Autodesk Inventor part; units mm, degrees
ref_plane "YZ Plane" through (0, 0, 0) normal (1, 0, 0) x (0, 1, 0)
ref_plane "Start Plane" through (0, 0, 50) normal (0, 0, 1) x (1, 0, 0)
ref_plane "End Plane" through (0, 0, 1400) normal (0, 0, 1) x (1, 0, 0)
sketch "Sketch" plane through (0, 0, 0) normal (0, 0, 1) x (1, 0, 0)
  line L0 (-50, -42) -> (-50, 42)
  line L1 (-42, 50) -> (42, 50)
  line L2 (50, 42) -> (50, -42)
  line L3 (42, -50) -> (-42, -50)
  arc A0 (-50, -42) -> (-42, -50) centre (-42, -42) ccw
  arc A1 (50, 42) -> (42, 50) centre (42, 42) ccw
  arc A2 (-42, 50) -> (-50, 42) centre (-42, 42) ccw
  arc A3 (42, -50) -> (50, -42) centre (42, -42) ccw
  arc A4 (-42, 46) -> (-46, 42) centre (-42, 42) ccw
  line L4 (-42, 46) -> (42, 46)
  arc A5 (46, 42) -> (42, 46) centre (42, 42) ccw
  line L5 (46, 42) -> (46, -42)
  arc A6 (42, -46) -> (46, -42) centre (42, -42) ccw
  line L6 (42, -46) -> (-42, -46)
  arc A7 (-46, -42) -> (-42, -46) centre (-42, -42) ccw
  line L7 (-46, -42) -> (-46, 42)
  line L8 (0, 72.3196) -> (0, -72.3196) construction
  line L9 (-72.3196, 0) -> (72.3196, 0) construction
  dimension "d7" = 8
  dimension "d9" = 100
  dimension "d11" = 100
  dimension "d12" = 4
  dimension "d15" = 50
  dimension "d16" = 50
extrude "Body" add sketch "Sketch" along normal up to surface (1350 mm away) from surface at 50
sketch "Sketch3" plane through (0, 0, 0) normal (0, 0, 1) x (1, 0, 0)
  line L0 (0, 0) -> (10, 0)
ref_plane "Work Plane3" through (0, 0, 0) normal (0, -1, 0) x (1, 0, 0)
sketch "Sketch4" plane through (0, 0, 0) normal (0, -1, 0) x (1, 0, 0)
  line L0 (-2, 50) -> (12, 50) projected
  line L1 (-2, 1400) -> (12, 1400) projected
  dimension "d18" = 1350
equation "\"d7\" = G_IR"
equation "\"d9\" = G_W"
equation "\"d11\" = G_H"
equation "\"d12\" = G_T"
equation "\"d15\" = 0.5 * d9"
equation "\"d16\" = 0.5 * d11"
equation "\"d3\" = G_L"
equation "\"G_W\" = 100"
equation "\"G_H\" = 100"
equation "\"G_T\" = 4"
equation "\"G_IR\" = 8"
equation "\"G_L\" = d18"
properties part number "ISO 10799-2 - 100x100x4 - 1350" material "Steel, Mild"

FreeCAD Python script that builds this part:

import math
import FreeCAD as App
import Part
import Sketcher
from FreeCAD import Vector
Q = App.Units.Quantity

doc = App.newDocument("Part")
body = doc.addObject("PartDesign::Body", "Body")

# Sketch on XY plane
sketch1 = body.newObject("Sketcher::SketchObject", "Sketch")
sketch1.AttachmentSupport = (doc.getObject("XY_Plane"), [""])
sketch1.MapMode = "FlatFace"
sketch1.AttachmentOffset = App.Placement(Vector(0, 0, 50), App.Rotation())
sketch1.addGeometry(Part.LineSegment(Vector(-50, 42, 0), Vector(-50, -42, 0)), False)
sketch1.addGeometry(Part.ArcOfCircle(Part.Circle(Vector(-42, -42, 0), Vector(0, 0, 1), 8), math.radians(180), math.radians(270)), False)
sketch1.addGeometry(Part.LineSegment(Vector(-42, -50, 0), Vector(42, -50, 0)), False)
sketch1.addGeometry(Part.ArcOfCircle(Part.Circle(Vector(42, -42, 0), Vector(0, 0, 1), 8), math.radians(-90), math.radians(0)), False)
sketch1.addGeometry(Part.LineSegment(Vector(50, -42, 0), Vector(50, 42, 0)), False)
sketch1.addGeometry(Part.ArcOfCircle(Part.Circle(Vector(42, 42, 0), Vector(0, 0, 1), 8), math.radians(0), math.radians(90)), False)
sketch1.addGeometry(Part.LineSegment(Vector(42, 50, 0), Vector(-42, 50, 0)), False)
sketch1.addGeometry(Part.ArcOfCircle(Part.Circle(Vector(-42, 42, 0), Vector(0, 0, 1), 8), math.radians(90), math.radians(180)), False)
sketch1.addGeometry(Part.ArcOfCircle(Part.Circle(Vector(-42, 42, 0), Vector(0, 0, 1), 4), math.radians(90), math.radians(180)), False)
sketch1.addGeometry(Part.LineSegment(Vector(-42, 46, 0), Vector(42, 46, 0)), False)
sketch1.addGeometry(Part.ArcOfCircle(Part.Circle(Vector(42, 42, 0), Vector(0, 0, 1), 4), math.radians(0), math.radians(90)), False)
sketch1.addGeometry(Part.LineSegment(Vector(46, 42, 0), Vector(46, -42, 0)), False)
sketch1.addGeometry(Part.ArcOfCircle(Part.Circle(Vector(42, -42, 0), Vector(0, 0, 1), 4), math.radians(-90), math.radians(0)), False)
sketch1.addGeometry(Part.LineSegment(Vector(42, -46, 0), Vector(-42, -46, 0)), False)
sketch1.addGeometry(Part.ArcOfCircle(Part.Circle(Vector(-42, -42, 0), Vector(0, 0, 1), 4), math.radians(180), math.radians(270)), False)
sketch1.addGeometry(Part.LineSegment(Vector(-46, -42, 0), Vector(-46, 42, 0)), False)
sketch1.addConstraint(Sketcher.Constraint("Tangent", 0, 2, 1, 1))
sketch1.addConstraint(Sketcher.Constraint("Tangent", 1, 2, 2, 1))
sketch1.addConstraint(Sketcher.Constraint("Tangent", 2, 2, 3, 1))
sketch1.addConstraint(Sketcher.Constraint("Tangent", 3, 2, 4, 1))
sketch1.addConstraint(Sketcher.Constraint("Tangent", 4, 2, 5, 1))
sketch1.addConstraint(Sketcher.Constraint("Tangent", 5, 2, 6, 1))
sketch1.addConstraint(Sketcher.Constraint("Tangent", 6, 2, 7, 1))
sketch1.addConstraint(Sketcher.Constraint("Tangent", 7, 2, 0, 1))
sketch1.addConstraint(Sketcher.Constraint("Tangent", 8, 1, 9, 1))
sketch1.addConstraint(Sketcher.Constraint("Tangent", 9, 2, 10, 2))
sketch1.addConstraint(Sketcher.Constraint("Tangent", 10, 1, 11, 1))
sketch1.addConstraint(Sketcher.Constraint("Tangent", 11, 2, 12, 2))
sketch1.addConstraint(Sketcher.Constraint("Tangent", 12, 1, 13, 1))
sketch1.addConstraint(Sketcher.Constraint("Tangent", 13, 2, 14, 2))
sketch1.addConstraint(Sketcher.Constraint("Tangent", 14, 1, 15, 1))
sketch1.addConstraint(Sketcher.Constraint("Tangent", 15, 2, 8, 2))
sketch1.addConstraint(Sketcher.Constraint("Vertical", 0))
sketch1.addConstraint(Sketcher.Constraint("Horizontal", 2))
sketch1.addConstraint(Sketcher.Constraint("Vertical", 4))
sketch1.addConstraint(Sketcher.Constraint("Horizontal", 6))
sketch1.addConstraint(Sketcher.Constraint("Horizontal", 9))
sketch1.addConstraint(Sketcher.Constraint("Vertical", 11))
sketch1.addConstraint(Sketcher.Constraint("Horizontal", 13))
sketch1.addConstraint(Sketcher.Constraint("Vertical", 15))
sketch1.addConstraint(Sketcher.Constraint("Coincident", 8, 3, 7, 3))
sketch1.addConstraint(Sketcher.Constraint("Coincident", 10, 3, 5, 3))
sketch1.addConstraint(Sketcher.Constraint("Coincident", 12, 3, 3, 3))
sketch1.addConstraint(Sketcher.Constraint("Equal", 1, 3))
sketch1.addConstraint(Sketcher.Constraint("Equal", 3, 5))
sketch1.addConstraint(Sketcher.Constraint("Equal", 5, 7))
sketch1.addConstraint(Sketcher.Constraint("Equal", 12, 14))
sketch1.addConstraint(Sketcher.Constraint("Symmetric", 1, 3, 5, 3, -1, 1))
sketch1.addConstraint(Sketcher.Constraint("Equal", 13, 0))
sketch1.addConstraint(Sketcher.Constraint("Radius", 1, Q("8 mm")))
sketch1.addConstraint(Sketcher.Constraint("Radius", 8, Q("4 mm")))
sketch1.addConstraint(Sketcher.Constraint("DistanceX", 0, 2, -1, 1, Q("50 mm")))
pad1 = body.newObject("PartDesign::Pad", "Pad")
pad1.Profile = sketch1
pad1.Length = 1350

doc.recompute()
